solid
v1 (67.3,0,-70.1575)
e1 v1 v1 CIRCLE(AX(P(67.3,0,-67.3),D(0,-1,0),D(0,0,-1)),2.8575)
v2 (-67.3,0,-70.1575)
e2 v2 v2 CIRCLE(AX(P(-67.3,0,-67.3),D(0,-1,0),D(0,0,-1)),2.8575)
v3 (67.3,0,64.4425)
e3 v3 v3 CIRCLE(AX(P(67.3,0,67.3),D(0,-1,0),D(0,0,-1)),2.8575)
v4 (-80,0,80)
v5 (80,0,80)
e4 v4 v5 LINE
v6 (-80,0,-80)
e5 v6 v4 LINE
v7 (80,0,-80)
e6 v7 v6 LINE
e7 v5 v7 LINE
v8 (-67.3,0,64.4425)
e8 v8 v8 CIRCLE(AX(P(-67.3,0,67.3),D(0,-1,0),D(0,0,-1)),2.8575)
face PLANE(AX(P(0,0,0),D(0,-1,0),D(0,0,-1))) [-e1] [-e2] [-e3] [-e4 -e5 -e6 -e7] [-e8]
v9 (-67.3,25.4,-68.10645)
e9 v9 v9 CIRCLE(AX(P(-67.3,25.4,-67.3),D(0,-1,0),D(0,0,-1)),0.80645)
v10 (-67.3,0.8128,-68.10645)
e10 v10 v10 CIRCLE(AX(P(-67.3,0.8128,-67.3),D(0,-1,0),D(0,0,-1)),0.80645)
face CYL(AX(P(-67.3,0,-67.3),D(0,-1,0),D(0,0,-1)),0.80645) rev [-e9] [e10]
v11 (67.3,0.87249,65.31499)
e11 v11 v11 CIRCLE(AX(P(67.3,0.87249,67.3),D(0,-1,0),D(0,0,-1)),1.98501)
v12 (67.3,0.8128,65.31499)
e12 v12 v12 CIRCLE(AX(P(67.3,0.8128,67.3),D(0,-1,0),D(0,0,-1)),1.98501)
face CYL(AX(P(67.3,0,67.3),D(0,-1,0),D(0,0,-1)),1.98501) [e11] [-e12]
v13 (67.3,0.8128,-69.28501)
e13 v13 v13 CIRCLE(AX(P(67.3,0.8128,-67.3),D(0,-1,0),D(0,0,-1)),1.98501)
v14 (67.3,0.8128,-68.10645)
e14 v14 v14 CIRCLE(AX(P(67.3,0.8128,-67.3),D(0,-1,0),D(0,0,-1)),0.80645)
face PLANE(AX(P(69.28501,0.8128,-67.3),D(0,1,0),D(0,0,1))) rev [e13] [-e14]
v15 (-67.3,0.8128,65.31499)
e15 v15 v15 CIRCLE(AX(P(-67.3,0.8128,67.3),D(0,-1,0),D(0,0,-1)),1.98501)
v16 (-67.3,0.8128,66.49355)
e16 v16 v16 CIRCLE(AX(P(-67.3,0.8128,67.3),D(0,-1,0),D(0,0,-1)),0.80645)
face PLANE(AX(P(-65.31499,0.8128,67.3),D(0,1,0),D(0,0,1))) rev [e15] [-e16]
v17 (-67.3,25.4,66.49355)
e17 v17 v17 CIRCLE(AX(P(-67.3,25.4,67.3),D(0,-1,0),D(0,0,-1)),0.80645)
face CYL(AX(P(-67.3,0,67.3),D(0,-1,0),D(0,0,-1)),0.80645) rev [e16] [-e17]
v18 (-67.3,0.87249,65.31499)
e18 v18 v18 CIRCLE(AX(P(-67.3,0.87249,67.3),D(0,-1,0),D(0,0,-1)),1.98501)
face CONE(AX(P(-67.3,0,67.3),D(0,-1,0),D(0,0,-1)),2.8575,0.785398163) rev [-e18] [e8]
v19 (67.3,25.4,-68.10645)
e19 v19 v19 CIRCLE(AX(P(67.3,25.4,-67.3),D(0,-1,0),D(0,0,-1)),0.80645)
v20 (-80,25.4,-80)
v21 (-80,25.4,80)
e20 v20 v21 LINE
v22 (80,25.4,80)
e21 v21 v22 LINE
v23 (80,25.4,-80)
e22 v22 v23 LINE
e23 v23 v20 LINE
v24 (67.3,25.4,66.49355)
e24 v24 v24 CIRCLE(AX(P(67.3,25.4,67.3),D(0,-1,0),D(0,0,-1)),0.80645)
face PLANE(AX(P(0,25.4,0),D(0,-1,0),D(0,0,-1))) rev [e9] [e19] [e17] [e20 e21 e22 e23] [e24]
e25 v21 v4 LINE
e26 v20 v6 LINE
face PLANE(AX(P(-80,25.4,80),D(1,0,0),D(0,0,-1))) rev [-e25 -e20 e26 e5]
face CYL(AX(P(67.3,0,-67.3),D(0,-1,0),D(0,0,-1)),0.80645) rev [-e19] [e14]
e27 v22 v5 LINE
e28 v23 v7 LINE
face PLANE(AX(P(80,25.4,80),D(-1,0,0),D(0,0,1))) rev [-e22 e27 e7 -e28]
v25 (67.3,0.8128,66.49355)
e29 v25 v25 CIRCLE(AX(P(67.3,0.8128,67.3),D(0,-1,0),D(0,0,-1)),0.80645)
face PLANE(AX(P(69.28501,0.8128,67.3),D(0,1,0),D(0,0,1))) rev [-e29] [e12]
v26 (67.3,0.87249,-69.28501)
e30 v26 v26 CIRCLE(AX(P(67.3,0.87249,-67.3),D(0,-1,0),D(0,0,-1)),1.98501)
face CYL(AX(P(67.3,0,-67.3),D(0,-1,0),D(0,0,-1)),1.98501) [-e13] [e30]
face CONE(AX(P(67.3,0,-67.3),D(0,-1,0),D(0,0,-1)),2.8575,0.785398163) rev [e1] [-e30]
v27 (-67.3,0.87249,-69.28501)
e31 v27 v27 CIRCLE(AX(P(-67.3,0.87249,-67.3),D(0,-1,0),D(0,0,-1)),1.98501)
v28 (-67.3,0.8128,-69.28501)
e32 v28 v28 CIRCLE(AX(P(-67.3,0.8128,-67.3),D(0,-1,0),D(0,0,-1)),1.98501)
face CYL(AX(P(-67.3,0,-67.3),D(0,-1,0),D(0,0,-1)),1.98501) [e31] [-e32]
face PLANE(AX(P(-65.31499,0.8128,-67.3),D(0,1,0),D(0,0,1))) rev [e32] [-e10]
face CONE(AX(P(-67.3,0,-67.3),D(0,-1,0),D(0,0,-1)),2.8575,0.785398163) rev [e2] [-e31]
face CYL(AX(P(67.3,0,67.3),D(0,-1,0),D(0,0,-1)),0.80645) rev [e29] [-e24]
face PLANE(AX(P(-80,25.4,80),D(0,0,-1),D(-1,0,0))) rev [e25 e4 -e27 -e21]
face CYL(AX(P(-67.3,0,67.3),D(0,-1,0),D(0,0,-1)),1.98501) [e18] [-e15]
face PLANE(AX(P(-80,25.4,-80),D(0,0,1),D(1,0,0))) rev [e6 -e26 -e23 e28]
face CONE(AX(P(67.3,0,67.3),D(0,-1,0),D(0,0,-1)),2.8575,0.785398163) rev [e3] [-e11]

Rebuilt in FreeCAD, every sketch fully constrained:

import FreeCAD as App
import Part
import Sketcher
Q = App.Units.Quantity

doc = App.newDocument("Part")
body = doc.addObject("PartDesign::Body", "Body")

sketch1 = body.newObject("Sketcher::SketchObject", "Sketch")
sketch1.AttachmentSupport = (doc.getObject("XZ_Plane"), [""])
sketch1.MapMode = "FlatFace"
sketch1.addGeometry(Part.LineSegment(App.Vector(-80, -80, 0), App.Vector(-80, 80, 0)), False)
sketch1.addGeometry(Part.LineSegment(App.Vector(-80, 80, 0), App.Vector(80, 80, 0)), False)
sketch1.addGeometry(Part.LineSegment(App.Vector(80, 80, 0), App.Vector(80, -80, 0)), False)
sketch1.addGeometry(Part.LineSegment(App.Vector(80, -80, 0), App.Vector(-80, -80, 0)), False)
sketch1.addConstraint(Sketcher.Constraint("Coincident", 0, 2, 1, 1))
sketch1.addConstraint(Sketcher.Constraint("Coincident", 1, 2, 2, 1))
sketch1.addConstraint(Sketcher.Constraint("Coincident", 2, 2, 3, 1))
sketch1.addConstraint(Sketcher.Constraint("Coincident", 3, 2, 0, 1))
sketch1.addConstraint(Sketcher.Constraint("Vertical", 0))
sketch1.addConstraint(Sketcher.Constraint("Horizontal", 1))
sketch1.addConstraint(Sketcher.Constraint("Vertical", 2))
sketch1.addConstraint(Sketcher.Constraint("Horizontal", 3))
sketch1.addConstraint(Sketcher.Constraint("Symmetric", 0, 2, 2, 2, -1, 1))
sketch1.addConstraint(Sketcher.Constraint("Equal", 3, 0))
sketch1.addConstraint(Sketcher.Constraint("DistanceX", 1, 1, 1, 2, 160.0))
pad1 = body.newObject("PartDesign::Pad", "Pad")
pad1.Profile = sketch1
pad1.Length = Q("1 in")
pad1.Reversed = True

sketch2 = body.newObject("Sketcher::SketchObject", "Sketch001")
sketch2.AttachmentSupport = (doc.getObject("YZ_Plane"), [""])
sketch2.MapMode = "FlatFace"
sketch2.AttachmentOffset = App.Placement(App.Vector(0, 0, -67.3), App.Rotation())
sketch2.addGeometry(Part.LineSegment(App.Vector(25.4, -67.3, 0), App.Vector(0, -67.3, 0)), False)
sketch2.addGeometry(Part.LineSegment(App.Vector(0, -67.3, 0), App.Vector(0, -70.16, 0)), False)
sketch2.addGeometry(Part.LineSegment(App.Vector(0, -70.16, 0), App.Vector(0.87, -69.29, 0)), False)
sketch2.addGeometry(Part.LineSegment(App.Vector(0.87, -69.29, 0), App.Vector(0.81, -69.29, 0)), False)
sketch2.addGeometry(Part.LineSegment(App.Vector(0.81, -69.29, 0), App.Vector(0.81, -68.11, 0)), False)
sketch2.addGeometry(Part.LineSegment(App.Vector(0.81, -68.11, 0), App.Vector(25.4, -68.11, 0)), False)
sketch2.addGeometry(Part.LineSegment(App.Vector(25.4, -68.11, 0), App.Vector(25.4, -67.3, 0)), False)
sketch2.addGeometry(Part.LineSegment(App.Vector(0, -67.3, 0), App.Vector(25.4, -67.3, 0)), True)
sketch2.addConstraint(Sketcher.Constraint("Coincident", 0, 2, 1, 1))
sketch2.addConstraint(Sketcher.Constraint("Coincident", 1, 2, 2, 1))
sketch2.addConstraint(Sketcher.Constraint("Coincident", 2, 2, 3, 1))
sketch2.addConstraint(Sketcher.Constraint("Coincident", 3, 2, 4, 1))
sketch2.addConstraint(Sketcher.Constraint("Coincident", 4, 2, 5, 1))
sketch2.addConstraint(Sketcher.Constraint("Coincident", 5, 2, 6, 1))
sketch2.addConstraint(Sketcher.Constraint("Coincident", 6, 2, 0, 1))
sketch2.addConstraint(Sketcher.Constraint("Horizontal", 0))
sketch2.addConstraint(Sketcher.Constraint("Vertical", 1))
sketch2.addConstraint(Sketcher.Constraint("Horizontal", 3))
sketch2.addConstraint(Sketcher.Constraint("Vertical", 4))
sketch2.addConstraint(Sketcher.Constraint("Horizontal", 5))
sketch2.addConstraint(Sketcher.Constraint("Vertical", 6))
sketch2.addConstraint(Sketcher.Constraint("Horizontal", 7))
sketch2.addConstraint(Sketcher.Constraint("Coincident", 7, 1, 0, 2))
sketch2.addConstraint(Sketcher.Constraint("PointOnObject", 0, 2, -2))
sketch2.addConstraint(Sketcher.Constraint("Vertical", 5, 2, 7, 2))
sketch2.addConstraint(Sketcher.Constraint("DistanceX", 0, 2, 0, 1, Q("1 in")))
sketch2.addConstraint(Sketcher.Constraint("Angle", 2, Q("45 deg")))
sketch2.addConstraint(Sketcher.Constraint("DistanceX", 5, 1, 5, 2, Q("0.968 in")))
sketch2.addConstraint(Sketcher.Constraint("DistanceY", 1, 2, 1, 1, Q("0.1125 in")))
sketch2.addConstraint(Sketcher.Constraint("DistanceY", 4, 1, 4, 2, Q("0.0464 in")))
sketch2.addConstraint(Sketcher.Constraint("DistanceX", 3, 2, 3, 1, 0.05969))
sketch2.addConstraint(Sketcher.Constraint("DistanceY", 0, 2, -1, 1, 67.3))
groove = body.newObject("PartDesign::Groove", "Groove")
groove.Profile = sketch2
groove.ReferenceAxis = (sketch2, ["Axis0"])
groove.Angle = 360
doc.recompute()

linearpattern = body.newObject("PartDesign::LinearPattern", "LinearPattern")
linearpattern.Originals = [groove]
linearpattern.Direction = (doc.getObject("X_Axis"), [""])
linearpattern.Mode = "offset"
linearpattern.Offset = 134.6
linearpattern.Occurrences = 2
body.Tip = linearpattern
doc.recompute()

datumline = body.newObject("PartDesign::Line", "DatumLine")
datumline.Placement = App.Placement(App.Vector(0, 0, 0), App.Rotation(App.Vector(0, 0, 1), App.Vector(0.707106781, 0, 0.707106781)))
linearpattern2 = body.newObject("PartDesign::LinearPattern", "LinearPattern001")
linearpattern2.Originals = [groove]
linearpattern2.Direction = (datumline, [""])
linearpattern2.Mode = "offset"
linearpattern2.Offset = 190.353145
linearpattern2.Occurrences = 2
body.Tip = linearpattern2
doc.recompute()

linearpattern3 = body.newObject("PartDesign::LinearPattern", "LinearPattern002")
linearpattern3.Originals = [groove]
linearpattern3.Direction = (doc.getObject("Z_Axis"), [""])
linearpattern3.Mode = "offset"
linearpattern3.Offset = 134.6
linearpattern3.Occurrences = 2
body.Tip = linearpattern3

doc.recompute()
